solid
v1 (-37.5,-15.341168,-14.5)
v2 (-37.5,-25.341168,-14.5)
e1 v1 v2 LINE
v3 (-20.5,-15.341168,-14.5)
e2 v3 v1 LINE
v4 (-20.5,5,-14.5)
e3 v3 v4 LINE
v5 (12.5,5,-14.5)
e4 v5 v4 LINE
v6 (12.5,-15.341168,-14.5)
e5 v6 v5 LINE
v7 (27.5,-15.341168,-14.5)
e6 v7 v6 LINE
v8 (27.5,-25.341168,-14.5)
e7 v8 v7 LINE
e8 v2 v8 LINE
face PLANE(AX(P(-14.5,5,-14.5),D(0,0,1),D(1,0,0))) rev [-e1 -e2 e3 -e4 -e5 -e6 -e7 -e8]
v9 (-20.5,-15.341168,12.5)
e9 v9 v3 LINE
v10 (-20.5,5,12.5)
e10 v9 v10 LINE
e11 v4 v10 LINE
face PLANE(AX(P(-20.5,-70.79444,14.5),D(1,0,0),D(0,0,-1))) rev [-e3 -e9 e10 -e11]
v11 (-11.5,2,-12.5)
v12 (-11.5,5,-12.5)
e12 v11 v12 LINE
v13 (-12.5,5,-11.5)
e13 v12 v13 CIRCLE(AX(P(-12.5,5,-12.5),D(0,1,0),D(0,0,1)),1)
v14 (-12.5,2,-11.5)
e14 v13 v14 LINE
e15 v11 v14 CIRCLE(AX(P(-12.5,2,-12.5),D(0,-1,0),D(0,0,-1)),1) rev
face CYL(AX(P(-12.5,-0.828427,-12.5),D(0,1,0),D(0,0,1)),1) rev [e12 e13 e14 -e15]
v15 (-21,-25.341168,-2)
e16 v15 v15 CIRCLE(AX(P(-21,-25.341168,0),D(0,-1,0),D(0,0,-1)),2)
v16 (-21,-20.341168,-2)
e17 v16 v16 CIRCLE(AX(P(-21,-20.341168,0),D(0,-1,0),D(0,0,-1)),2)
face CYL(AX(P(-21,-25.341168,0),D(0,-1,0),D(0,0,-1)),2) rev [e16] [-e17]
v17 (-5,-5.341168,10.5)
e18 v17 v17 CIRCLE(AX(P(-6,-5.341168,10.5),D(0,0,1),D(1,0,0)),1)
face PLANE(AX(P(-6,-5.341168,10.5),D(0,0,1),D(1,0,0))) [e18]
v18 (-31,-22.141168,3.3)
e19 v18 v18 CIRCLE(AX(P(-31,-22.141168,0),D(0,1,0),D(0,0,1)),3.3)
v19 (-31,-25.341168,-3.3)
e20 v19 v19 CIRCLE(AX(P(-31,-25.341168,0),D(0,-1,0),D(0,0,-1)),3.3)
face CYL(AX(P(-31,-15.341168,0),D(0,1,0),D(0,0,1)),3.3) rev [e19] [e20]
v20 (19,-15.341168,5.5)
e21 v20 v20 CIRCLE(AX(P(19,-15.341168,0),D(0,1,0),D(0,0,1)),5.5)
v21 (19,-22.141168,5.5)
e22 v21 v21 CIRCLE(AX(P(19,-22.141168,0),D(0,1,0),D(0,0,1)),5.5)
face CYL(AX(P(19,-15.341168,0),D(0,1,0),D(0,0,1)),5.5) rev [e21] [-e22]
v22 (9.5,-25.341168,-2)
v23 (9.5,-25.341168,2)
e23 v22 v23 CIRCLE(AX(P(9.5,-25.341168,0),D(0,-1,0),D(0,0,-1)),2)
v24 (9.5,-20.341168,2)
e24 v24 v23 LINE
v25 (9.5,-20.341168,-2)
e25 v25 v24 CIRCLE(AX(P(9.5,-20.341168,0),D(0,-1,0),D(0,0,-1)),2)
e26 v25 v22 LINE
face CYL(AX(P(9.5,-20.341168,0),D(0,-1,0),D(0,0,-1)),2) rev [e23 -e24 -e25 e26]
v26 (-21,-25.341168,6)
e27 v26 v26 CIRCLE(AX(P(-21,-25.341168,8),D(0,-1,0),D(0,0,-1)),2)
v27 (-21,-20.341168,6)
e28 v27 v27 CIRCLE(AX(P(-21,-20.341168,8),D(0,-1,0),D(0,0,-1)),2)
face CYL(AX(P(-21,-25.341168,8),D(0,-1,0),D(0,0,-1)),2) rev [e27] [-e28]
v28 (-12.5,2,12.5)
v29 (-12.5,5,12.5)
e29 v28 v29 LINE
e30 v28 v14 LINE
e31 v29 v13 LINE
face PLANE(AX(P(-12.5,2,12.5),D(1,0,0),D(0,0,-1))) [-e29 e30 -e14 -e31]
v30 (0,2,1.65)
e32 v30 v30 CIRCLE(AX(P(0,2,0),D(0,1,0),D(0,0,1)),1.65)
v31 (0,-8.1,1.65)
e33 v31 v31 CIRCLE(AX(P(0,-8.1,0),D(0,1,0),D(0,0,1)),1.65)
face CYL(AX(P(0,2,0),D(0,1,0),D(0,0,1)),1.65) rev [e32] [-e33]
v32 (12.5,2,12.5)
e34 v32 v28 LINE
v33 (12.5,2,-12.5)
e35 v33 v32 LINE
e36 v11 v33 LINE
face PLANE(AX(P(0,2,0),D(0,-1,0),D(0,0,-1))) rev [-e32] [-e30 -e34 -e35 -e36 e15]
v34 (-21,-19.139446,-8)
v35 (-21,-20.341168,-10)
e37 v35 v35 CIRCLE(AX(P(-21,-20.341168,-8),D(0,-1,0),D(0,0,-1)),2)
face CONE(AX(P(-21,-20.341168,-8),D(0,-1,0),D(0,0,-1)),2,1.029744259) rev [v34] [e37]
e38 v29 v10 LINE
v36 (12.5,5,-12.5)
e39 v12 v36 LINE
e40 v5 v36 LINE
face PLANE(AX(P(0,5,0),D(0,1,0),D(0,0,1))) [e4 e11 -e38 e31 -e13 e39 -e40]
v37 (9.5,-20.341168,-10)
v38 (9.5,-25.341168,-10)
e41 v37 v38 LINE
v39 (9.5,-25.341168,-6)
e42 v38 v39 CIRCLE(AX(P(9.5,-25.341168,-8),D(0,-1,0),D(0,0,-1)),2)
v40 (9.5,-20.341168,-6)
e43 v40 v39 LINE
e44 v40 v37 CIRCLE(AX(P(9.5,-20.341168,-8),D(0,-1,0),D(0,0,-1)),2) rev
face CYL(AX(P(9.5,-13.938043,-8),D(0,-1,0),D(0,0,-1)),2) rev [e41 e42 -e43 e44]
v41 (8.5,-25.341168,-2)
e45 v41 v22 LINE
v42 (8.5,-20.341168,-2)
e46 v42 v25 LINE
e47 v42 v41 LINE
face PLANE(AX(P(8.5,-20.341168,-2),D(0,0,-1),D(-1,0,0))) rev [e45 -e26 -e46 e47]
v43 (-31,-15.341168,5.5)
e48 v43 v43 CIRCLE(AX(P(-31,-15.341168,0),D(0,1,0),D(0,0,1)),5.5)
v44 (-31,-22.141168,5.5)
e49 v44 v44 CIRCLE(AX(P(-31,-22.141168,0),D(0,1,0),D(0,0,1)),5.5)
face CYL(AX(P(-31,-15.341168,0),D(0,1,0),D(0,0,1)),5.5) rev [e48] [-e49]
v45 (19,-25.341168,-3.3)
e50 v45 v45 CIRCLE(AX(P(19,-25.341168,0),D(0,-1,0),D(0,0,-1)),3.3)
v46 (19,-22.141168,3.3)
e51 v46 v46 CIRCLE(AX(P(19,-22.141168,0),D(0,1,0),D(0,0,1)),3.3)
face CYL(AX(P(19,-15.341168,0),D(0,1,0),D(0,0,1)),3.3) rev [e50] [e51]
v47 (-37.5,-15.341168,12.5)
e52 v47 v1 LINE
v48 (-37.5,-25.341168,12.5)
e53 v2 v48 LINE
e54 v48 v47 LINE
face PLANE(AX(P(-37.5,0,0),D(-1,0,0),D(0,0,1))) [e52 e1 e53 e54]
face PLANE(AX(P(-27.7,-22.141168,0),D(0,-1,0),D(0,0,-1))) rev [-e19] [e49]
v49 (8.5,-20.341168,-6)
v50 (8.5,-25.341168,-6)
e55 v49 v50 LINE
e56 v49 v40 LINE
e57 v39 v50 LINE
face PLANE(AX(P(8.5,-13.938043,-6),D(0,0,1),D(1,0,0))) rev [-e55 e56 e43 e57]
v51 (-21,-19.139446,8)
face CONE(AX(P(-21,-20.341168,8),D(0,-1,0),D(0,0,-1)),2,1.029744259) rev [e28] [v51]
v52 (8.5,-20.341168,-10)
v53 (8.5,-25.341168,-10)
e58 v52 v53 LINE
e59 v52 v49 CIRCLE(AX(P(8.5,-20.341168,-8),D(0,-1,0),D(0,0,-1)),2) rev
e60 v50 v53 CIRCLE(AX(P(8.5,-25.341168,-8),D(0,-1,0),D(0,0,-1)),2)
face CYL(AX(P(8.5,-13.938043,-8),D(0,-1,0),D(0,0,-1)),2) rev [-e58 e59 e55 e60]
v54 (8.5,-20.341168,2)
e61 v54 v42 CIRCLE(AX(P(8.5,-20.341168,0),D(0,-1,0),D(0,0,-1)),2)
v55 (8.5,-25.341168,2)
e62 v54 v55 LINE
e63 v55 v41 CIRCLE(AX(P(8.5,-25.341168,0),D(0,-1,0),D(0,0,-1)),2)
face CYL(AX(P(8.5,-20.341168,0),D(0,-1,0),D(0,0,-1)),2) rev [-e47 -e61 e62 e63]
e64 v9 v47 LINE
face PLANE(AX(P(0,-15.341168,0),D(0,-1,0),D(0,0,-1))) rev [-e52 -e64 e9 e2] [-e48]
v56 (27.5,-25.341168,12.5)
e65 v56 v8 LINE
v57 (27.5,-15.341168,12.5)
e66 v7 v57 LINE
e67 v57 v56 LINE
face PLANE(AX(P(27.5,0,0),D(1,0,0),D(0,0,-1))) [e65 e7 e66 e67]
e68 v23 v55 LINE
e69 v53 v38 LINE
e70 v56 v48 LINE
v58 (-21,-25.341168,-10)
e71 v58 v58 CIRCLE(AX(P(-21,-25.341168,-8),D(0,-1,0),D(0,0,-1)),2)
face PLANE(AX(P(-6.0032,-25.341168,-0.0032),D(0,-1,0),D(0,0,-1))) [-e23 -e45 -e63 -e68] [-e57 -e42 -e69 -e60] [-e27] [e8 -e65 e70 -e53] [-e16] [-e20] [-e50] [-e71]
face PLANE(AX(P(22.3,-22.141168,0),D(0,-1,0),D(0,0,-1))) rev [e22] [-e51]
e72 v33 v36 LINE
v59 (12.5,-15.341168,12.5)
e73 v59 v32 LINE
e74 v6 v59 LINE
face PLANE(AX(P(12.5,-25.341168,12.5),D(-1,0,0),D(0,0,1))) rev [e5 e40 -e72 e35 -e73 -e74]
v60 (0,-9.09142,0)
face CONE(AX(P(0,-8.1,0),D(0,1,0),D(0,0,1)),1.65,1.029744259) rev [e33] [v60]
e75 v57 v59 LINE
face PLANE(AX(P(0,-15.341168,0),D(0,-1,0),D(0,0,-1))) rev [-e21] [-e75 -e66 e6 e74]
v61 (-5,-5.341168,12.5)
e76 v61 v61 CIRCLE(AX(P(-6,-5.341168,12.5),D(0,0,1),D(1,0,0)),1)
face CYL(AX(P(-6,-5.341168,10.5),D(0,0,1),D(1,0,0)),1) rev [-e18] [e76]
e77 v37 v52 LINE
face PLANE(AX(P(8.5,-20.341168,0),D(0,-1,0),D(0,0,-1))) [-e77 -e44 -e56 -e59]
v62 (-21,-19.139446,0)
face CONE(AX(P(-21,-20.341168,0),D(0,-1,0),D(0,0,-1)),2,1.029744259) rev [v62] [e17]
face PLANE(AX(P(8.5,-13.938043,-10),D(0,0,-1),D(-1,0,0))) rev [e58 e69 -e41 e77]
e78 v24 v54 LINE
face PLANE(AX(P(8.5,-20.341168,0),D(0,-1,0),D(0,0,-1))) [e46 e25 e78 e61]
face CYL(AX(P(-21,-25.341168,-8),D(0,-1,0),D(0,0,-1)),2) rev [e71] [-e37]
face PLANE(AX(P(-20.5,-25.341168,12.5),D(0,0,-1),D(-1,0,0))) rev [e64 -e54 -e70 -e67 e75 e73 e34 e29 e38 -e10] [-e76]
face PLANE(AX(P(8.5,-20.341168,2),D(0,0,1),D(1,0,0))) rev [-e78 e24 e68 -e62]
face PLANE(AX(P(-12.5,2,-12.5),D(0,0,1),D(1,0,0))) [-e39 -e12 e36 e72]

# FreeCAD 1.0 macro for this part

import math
import FreeCAD as App
import Part
import Sketcher

V = App.Vector

doc = App.newDocument("Part")
body = doc.addObject("PartDesign::Body", "Body")

# Sketch on XZ plane
sketch1 = body.newObject("Sketcher::SketchObject", "Sketch")
sketch1.AttachmentSupport = (doc.getObject("XZ_Plane"), [""])
sketch1.MapMode = "FlatFace"
sketch1.addGeometry(Part.LineSegment(V(-14, -14, 0), V(-14, 14, 0)), False)
sketch1.addGeometry(Part.LineSegment(V(-14, 14, 0), V(14, 14, 0)), False)
sketch1.addGeometry(Part.LineSegment(V(14, 14, 0), V(14, -14, 0)), False)
sketch1.addGeometry(Part.LineSegment(V(14, -14, 0), V(-14, -14, 0)), False)
sketch1.addConstraint(Sketcher.Constraint("Coincident", 0, 2, 1, 1))
sketch1.addConstraint(Sketcher.Constraint("Coincident", 1, 2, 2, 1))
sketch1.addConstraint(Sketcher.Constraint("Coincident", 2, 2, 3, 1))
sketch1.addConstraint(Sketcher.Constraint("Coincident", 3, 2, 0, 1))
sketch1.addConstraint(Sketcher.Constraint("Vertical", 0))
sketch1.addConstraint(Sketcher.Constraint("Horizontal", 1))
sketch1.addConstraint(Sketcher.Constraint("Vertical", 2))
sketch1.addConstraint(Sketcher.Constraint("Horizontal", 3))
sketch1.addConstraint(Sketcher.Constraint("Symmetric", 0, 2, 2, 2, -1, 1))
sketch1.addConstraint(Sketcher.Constraint("Equal", 3, 0))
sketch1.addConstraint(Sketcher.Constraint("DistanceX", 1, 1, 1, 2, 29.0))
pad1 = body.newObject("PartDesign::Pad", "Pad")
pad1.Profile = sketch1
pad1.Length = 5
pad1.Reversed = True

# Sketch on XZ plane
sketch2 = body.newObject("Sketcher::SketchObject", "Sketch001")
sketch2.AttachmentSupport = (doc.getObject("XZ_Plane"), [""])
sketch2.MapMode = "FlatFace"
sketch2.AttachmentOffset = App.Placement(V(0, 0, -5), App.Rotation())
sketch2.addGeometry(Part.LineSegment(V(-12, 12, 0), V(-12, -12, 0)), False)
sketch2.addGeometry(Part.LineSegment(V(-12, -12, 0), V(12, -12, 0)), False)
sketch2.addGeometry(Part.LineSegment(V(12, -12, 0), V(12, 12, 0)), False)
sketch2.addGeometry(Part.LineSegment(V(12, 12, 0), V(-12, 12, 0)), False)
sketch2.addConstraint(Sketcher.Constraint("Coincident", 0, 2, 1, 1))
sketch2.addConstraint(Sketcher.Constraint("Coincident", 1, 2, 2, 1))
sketch2.addConstraint(Sketcher.Constraint("Coincident", 2, 2, 3, 1))
sketch2.addConstraint(Sketcher.Constraint("Coincident", 3, 2, 0, 1))
sketch2.addConstraint(Sketcher.Constraint("Vertical", 0))
sketch2.addConstraint(Sketcher.Constraint("Horizontal", 1))
sketch2.addConstraint(Sketcher.Constraint("Vertical", 2))
sketch2.addConstraint(Sketcher.Constraint("Horizontal", 3))
sketch2.addConstraint(Sketcher.Constraint("Symmetric", 0, 2, 2, 2, -1, 1))
sketch2.addConstraint(Sketcher.Constraint("Equal", 3, 0))
sketch2.addConstraint(Sketcher.Constraint("DistanceX", 1, 1, 1, 2, 25.0))
pocket1 = body.newObject("PartDesign::Pocket", "Pocket")
pocket1.Profile = sketch2
pocket1.Length = 3
pocket1.Reversed = True

# Sketch on XZ plane
sketch3 = body.newObject("Sketcher::SketchObject", "Sketch002")
sketch3.AttachmentSupport = (doc.getObject("XZ_Plane"), [""])
sketch3.MapMode = "FlatFace"
sketch3.addGeometry(Part.LineSegment(V(14, -14, 0), V(14, 14, 0)), False)
sketch3.addGeometry(Part.LineSegment(V(14, 14, 0), V(-20, 14, 0)), False)
sketch3.addGeometry(Part.LineSegment(V(-20, 14, 0), V(-20, -14, 0)), False)
sketch3.addGeometry(Part.LineSegment(V(-20, -14, 0), V(14, -14, 0)), False)
sketch3.addConstraint(Sketcher.Constraint("Coincident", 0, 2, 1, 1))
sketch3.addConstraint(Sketcher.Constraint("Coincident", 1, 2, 2, 1))
sketch3.addConstraint(Sketcher.Constraint("Coincident", 2, 2, 3, 1))
sketch3.addConstraint(Sketcher.Constraint("Coincident", 3, 2, 0, 1))
sketch3.addConstraint(Sketcher.Constraint("Vertical", 0))
sketch3.addConstraint(Sketcher.Constraint("Horizontal", 1))
sketch3.addConstraint(Sketcher.Constraint("Vertical", 2))
sketch3.addConstraint(Sketcher.Constraint("Horizontal", 3))
sketch3.addConstraint(Sketcher.Constraint("DistanceX", 1, 2, 1, 1, 35.0))
sketch3.addConstraint(Sketcher.Constraint("DistanceY", 0, 1, 0, 2, 29.0))
sketch3.addConstraint(Sketcher.Constraint("DistanceX", -1, 1, 0, 2, 14.5))
sketch3.addConstraint(Sketcher.Constraint("DistanceY", -1, 1, 0, 2, 14.5))
pad2 = body.newObject("PartDesign::Pad", "Pad001")
pad2.Profile = sketch3
pad2.Length = 25.341168

# Sketch on XZ plane
sketch4 = body.newObject("Sketcher::SketchObject", "Sketch003")
sketch4.AttachmentSupport = (doc.getObject("XZ_Plane"), [""])
sketch4.MapMode = "FlatFace"
sketch4.AttachmentOffset = App.Placement(V(0, 0, -2), App.Rotation())
sketch4.addGeometry(Part.Circle(V(0, 0, 0), V(0, 0, 1), 1.6), False)
sketch4.addConstraint(Sketcher.Constraint("Coincident", 0, 3, -1, 1))
sketch4.addConstraint(Sketcher.Constraint("Diameter", 0, 3.3))
doc.recompute()
hole = body.newObject("PartDesign::Hole", "Hole")
hole.Profile = sketch4
hole.ThreadType = "None"
hole.Diameter = 3.3
hole.DepthType = "Dimension"
hole.Depth = 10.1
hole.DrillPoint = "Angled"
hole.DrillPointAngle = 118
hole.Reversed = True

# Sketch on XZ plane
sketch5 = body.newObject("Sketcher::SketchObject", "Sketch004")
sketch5.AttachmentSupport = (doc.getObject("XZ_Plane"), [""])
sketch5.MapMode = "FlatFace"
sketch5.AttachmentOffset = App.Placement(V(0, 0, -5), App.Rotation())
sketch5.addGeometry(Part.Circle(V(-12.5, -12.5, 0), V(0, 0, 1), 1), False)
sketch5.addConstraint(Sketcher.Constraint("Diameter", 0, 2.0))
sketch5.addConstraint(Sketcher.Constraint("DistanceX", 0, 3, -1, 1, 12.5))
sketch5.addConstraint(Sketcher.Constraint("DistanceY", 0, 3, -1, 1, 12.5))
pocket2 = body.newObject("PartDesign::Pocket", "Pocket001")
pocket2.Profile = sketch5
pocket2.Length = 3
pocket2.Reversed = True

# Sketch on YZ plane
sketch6 = body.newObject("Sketcher::SketchObject", "Sketch005")
sketch6.AttachmentSupport = (doc.getObject("YZ_Plane"), [""])
sketch6.MapMode = "FlatFace"
sketch6.AttachmentOffset = App.Placement(V(0, 0, -14.5), App.Rotation())
sketch6.addGeometry(Part.LineSegment(V(5, -14, 0), V(0, -14, 0)), False)
sketch6.addGeometry(Part.LineSegment(V(0, -14, 0), V(0, 14, 0)), False)
sketch6.addGeometry(Part.LineSegment(V(0, 14, 0), V(5, 14, 0)), False)
sketch6.addGeometry(Part.LineSegment(V(5, 14, 0), V(5, -14, 0)), False)
sketch6.addConstraint(Sketcher.Constraint("Coincident", 0, 2, 1, 1))
sketch6.addConstraint(Sketcher.Constraint("Coincident", 1, 2, 2, 1))
sketch6.addConstraint(Sketcher.Constraint("Coincident", 2, 2, 3, 1))
sketch6.addConstraint(Sketcher.Constraint("Coincident", 3, 2, 0, 1))
sketch6.addConstraint(Sketcher.Constraint("Horizontal", 0))
sketch6.addConstraint(Sketcher.Constraint("Vertical", 1))
sketch6.addConstraint(Sketcher.Constraint("Horizontal", 2))
sketch6.addConstraint(Sketcher.Constraint("Vertical", 3))
sketch6.addConstraint(Sketcher.Constraint("Symmetric", 0, 2, 1, 2, -1, 1))
sketch6.addConstraint(Sketcher.Constraint("DistanceX", 0, 2, 0, 1, 5.0))
sketch6.addConstraint(Sketcher.Constraint("DistanceY", 1, 1, 1, 2, 29.0))
pad3 = body.newObject("PartDesign::Pad", "Pad002")
pad3.Profile = sketch6
pad3.Length = 6
pad3.Reversed = True

# Sketch on XZ plane
sketch7 = body.newObject("Sketcher::SketchObject", "Sketch006")
sketch7.AttachmentSupport = (doc.getObject("XZ_Plane"), [""])
sketch7.MapMode = "FlatFace"
sketch7.AttachmentOffset = App.Placement(V(0, 0, -5), App.Rotation())
sketch7.addGeometry(Part.LineSegment(V(-20.5, 14.5, 0), V(14.5, 14.5, 0)), False)
sketch7.addGeometry(Part.LineSegment(V(14.5, 14.5, 0), V(14.5, -14.5, 0)), False)
sketch7.addGeometry(Part.LineSegment(V(14.5, -14.5, 0), V(12.5, -14.5, 0)), False)
sketch7.addGeometry(Part.LineSegment(V(12.5, -14.5, 0), V(12.5, 12.5, 0)), False)
sketch7.addGeometry(Part.LineSegment(V(12.5, 12.5, 0), V(-20.5, 12.5, 0)), False)
sketch7.addGeometry(Part.LineSegment(V(-20.5, 12.5, 0), V(-20.5, 14.5, 0)), False)
sketch7.addConstraint(Sketcher.Constraint("Coincident", 0, 2, 1, 1))
sketch7.addConstraint(Sketcher.Constraint("Coincident", 1, 2, 2, 1))
sketch7.addConstraint(Sketcher.Constraint("Coincident", 2, 2, 3, 1))
sketch7.addConstraint(Sketcher.Constraint("Coincident", 3, 2, 4, 1))
sketch7.addConstraint(Sketcher.Constraint("Coincident", 4, 2, 5, 1))
sketch7.addConstraint(Sketcher.Constraint("Coincident", 5, 2, 0, 1))
sketch7.addConstraint(Sketcher.Constraint("Horizontal", 0))
sketch7.addConstraint(Sketcher.Constraint("Vertical", 1))
sketch7.addConstraint(Sketcher.Constraint("Horizontal", 2))
sketch7.addConstraint(Sketcher.Constraint("Vertical", 3))
sketch7.addConstraint(Sketcher.Constraint("Horizontal", 4))
sketch7.addConstraint(Sketcher.Constraint("Vertical", 5))
sketch7.addConstraint(Sketcher.Constraint("Equal", 2, 5))
sketch7.addConstraint(Sketcher.Constraint("DistanceX", 0, 1, 0, 2, 35.0))
sketch7.addConstraint(Sketcher.Constraint("DistanceX", 2, 2, 2, 1, 2.0))
sketch7.addConstraint(Sketcher.Constraint("DistanceY", 1, 2, 1, 1, 29.0))
sketch7.addConstraint(Sketcher.Constraint("DistanceX", -1, 1, 0, 2, 14.5))
sketch7.addConstraint(Sketcher.Constraint("DistanceY", -1, 1, 0, 2, 14.5))
pocket3 = body.newObject("PartDesign::Pocket", "Pocket002")
pocket3.Profile = sketch7
pocket3.Type = "ThroughAll"
pocket3.Reversed = True

# Sketch on XZ plane
sketch8 = body.newObject("Sketcher::SketchObject", "Sketch007")
sketch8.AttachmentSupport = (doc.getObject("XZ_Plane"), [""])
sketch8.MapMode = "FlatFace"
sketch8.AttachmentOffset = App.Placement(V(0, 0, 25.341168), App.Rotation())
sketch8.addGeometry(Part.LineSegment(V(34, -12, 0), V(34, 12, 0)), False)
sketch8.addGeometry(Part.LineSegment(V(34, 12, 0), V(-46, 12, 0)), False)
sketch8.addGeometry(Part.LineSegment(V(-46, 12, 0), V(-46, -12, 0)), False)
sketch8.addGeometry(Part.LineSegment(V(-46, -12, 0), V(34, -12, 0)), False)
sketch8.addConstraint(Sketcher.Constraint("Coincident", 0, 2, 1, 1))
sketch8.addConstraint(Sketcher.Constraint("Coincident", 1, 2, 2, 1))
sketch8.addConstraint(Sketcher.Constraint("Coincident", 2, 2, 3, 1))
sketch8.addConstraint(Sketcher.Constraint("Coincident", 3, 2, 0, 1))
sketch8.addConstraint(Sketcher.Constraint("Vertical", 0))
sketch8.addConstraint(Sketcher.Constraint("Horizontal", 1))
sketch8.addConstraint(Sketcher.Constraint("Vertical", 2))
sketch8.addConstraint(Sketcher.Constraint("Horizontal", 3))
sketch8.addConstraint(Sketcher.Constraint("DistanceX", 1, 2, 1, 1, 80.0))
sketch8.addConstraint(Sketcher.Constraint("DistanceY", 0, 1, 0, 2, 25.0))
sketch8.addConstraint(Sketcher.Constraint("DistanceX", -1, 1, 0, 2, 34.0))
sketch8.addConstraint(Sketcher.Constraint("DistanceY", -1, 1, 0, 2, 12.5))
pad4 = body.newObject("PartDesign::Pad", "Pad003")
pad4.Profile = sketch8
pad4.Length = 10
pad4.Reversed = True

# Sketch on XZ plane
sketch9 = body.newObject("Sketcher::SketchObject", "Sketch008")
sketch9.AttachmentSupport = (doc.getObject("XZ_Plane"), [""])
sketch9.MapMode = "FlatFace"
sketch9.AttachmentOffset = App.Placement(V(0, 0, 15.341168), App.Rotation())
sketch9.addGeometry(Part.Circle(V(-31, 0, 0), V(0, 0, 1), 3.3), False)
sketch9.addGeometry(Part.Circle(V(19, 0, 0), V(0, 0, 1), 3.3), False)
sketch9.addConstraint(Sketcher.Constraint("Equal", 0, 1))
sketch9.addConstraint(Sketcher.Constraint("PointOnObject", 0, 3, -1))
sketch9.addConstraint(Sketcher.Constraint("PointOnObject", 1, 3, -1))
sketch9.addConstraint(Sketcher.Constraint("Diameter", 0, 6.6))
sketch9.addConstraint(Sketcher.Constraint("DistanceX", 0, 3, -1, 1, 31.0))
sketch9.addConstraint(Sketcher.Constraint("DistanceX", -1, 1, 1, 3, 19.0))
doc.recompute()
hole2 = body.newObject("PartDesign::Hole", "Hole001")
hole2.Profile = sketch9
hole2.ThreadType = "None"
hole2.Diameter = 6.6
hole2.DepthType = "Dimension"
hole2.Depth = 10.1
hole2.DrillPoint = "Angled"
hole2.DrillPointAngle = 118
hole2.HoleCutType = "Counterbore"
hole2.HoleCutDiameter = 11
hole2.HoleCutDepth = 6.8
hole2.Reversed = True

# Sketch on XY plane
sketch10 = body.newObject("Sketcher::SketchObject", "Sketch009")
sketch10.AttachmentSupport = (doc.getObject("XY_Plane"), [""])
sketch10.MapMode = "FlatFace"
sketch10.AttachmentOffset = App.Placement(V(0, 0, -12.5), App.Rotation())
sketch10.addGeometry(Part.LineSegment(V(34, -15, 0), V(34, -25, 0)), False)
sketch10.addGeometry(Part.LineSegment(V(34, -25, 0), V(-46, -25, 0)), False)
sketch10.addGeometry(Part.LineSegment(V(-46, -25, 0), V(-46, -15, 0)), False)
sketch10.addGeometry(Part.LineSegment(V(-46, -15, 0), V(34, -15, 0)), False)
sketch10.addConstraint(Sketcher.Constraint("Coincident", 0, 2, 1, 1))
sketch10.addConstraint(Sketcher.Constraint("Coincident", 1, 2, 2, 1))
sketch10.addConstraint(Sketcher.Constraint("Coincident", 2, 2, 3, 1))
sketch10.addConstraint(Sketcher.Constraint("Coincident", 3, 2, 0, 1))
sketch10.addConstraint(Sketcher.Constraint("Vertical", 0))
sketch10.addConstraint(Sketcher.Constraint("Horizontal", 1))
sketch10.addConstraint(Sketcher.Constraint("Vertical", 2))
sketch10.addConstraint(Sketcher.Constraint("Horizontal", 3))
sketch10.addConstraint(Sketcher.Constraint("DistanceX", 1, 2, 1, 1, 80.0))
sketch10.addConstraint(Sketcher.Constraint("DistanceY", 0, 2, 0, 1, 10.0))
sketch10.addConstraint(Sketcher.Constraint("DistanceX", -1, 1, 0, 2, 34.0))
sketch10.addConstraint(Sketcher.Constraint("DistanceY", 0, 2, -1, 1, 25.341168))
pad5 = body.newObject("PartDesign::Pad", "Pad004")
pad5.Profile = sketch10
pad5.Length = 2
pad5.Reversed = True

# Sketch on YZ plane
sketch11 = body.newObject("Sketcher::SketchObject", "Sketch010")
sketch11.AttachmentSupport = (doc.getObject("YZ_Plane"), [""])
sketch11.MapMode = "FlatFace"
sketch11.AttachmentOffset = App.Placement(V(0, 0, -46), App.Rotation())
sketch11.addGeometry(Part.LineSegment(V(-15, -14, 0), V(-25, -14, 0)), False)
sketch11.addGeometry(Part.LineSegment(V(-25, -14, 0), V(-25, 12, 0)), False)
sketch11.addGeometry(Part.LineSegment(V(-25, 12, 0), V(-15, 12, 0)), False)
sketch11.addGeometry(Part.LineSegment(V(-15, 12, 0), V(-15, -14, 0)), False)
sketch11.addConstraint(Sketcher.Constraint("Coincident", 0, 2, 1, 1))
sketch11.addConstraint(Sketcher.Constraint("Coincident", 1, 2, 2, 1))
sketch11.addConstraint(Sketcher.Constraint("Coincident", 2, 2, 3, 1))
sketch11.addConstraint(Sketcher.Constraint("Coincident", 3, 2, 0, 1))
sketch11.addConstraint(Sketcher.Constraint("Horizontal", 0))
sketch11.addConstraint(Sketcher.Constraint("Vertical", 1))
sketch11.addConstraint(Sketcher.Constraint("Horizontal", 2))
sketch11.addConstraint(Sketcher.Constraint("Vertical", 3))
sketch11.addConstraint(Sketcher.Constraint("DistanceX", 0, 2, 0, 1, 10.0))
sketch11.addConstraint(Sketcher.Constraint("DistanceY", 1, 1, 1, 2, 27.0))
sketch11.addConstraint(Sketcher.Constraint("DistanceY", 0, 2, -1, 1, 14.5))
sketch11.addConstraint(Sketcher.Constraint("DistanceX", 0, 2, -1, 1, 25.341168))
pocket4 = body.newObject("PartDesign::Pocket", "Pocket003")
pocket4.Profile = sketch11
pocket4.Length = 2
pocket4.Reversed = True

# Sketch on XZ plane
sketch12 = body.newObject("Sketcher::SketchObject", "Sketch011")
sketch12.AttachmentSupport = (doc.getObject("XZ_Plane"), [""])
sketch12.MapMode = "FlatFace"
sketch12.AttachmentOffset = App.Placement(V(0, 0, 25.341168), App.Rotation())
sketch12.addGeometry(Part.Circle(V(-21, 0, 0), V(0, 0, 1), 2), False)
sketch12.addConstraint(Sketcher.Constraint("PointOnObject", 0, 3, -1))
sketch12.addConstraint(Sketcher.Constraint("Diameter", 0, 4.0))
sketch12.addConstraint(Sketcher.Constraint("DistanceX", 0, 3, -1, 1, 21.0))
doc.recompute()
hole3 = body.newObject("PartDesign::Hole", "Hole002")
hole3.Profile = sketch12
hole3.ThreadType = "None"
hole3.Diameter = 4
hole3.DepthType = "Dimension"
hole3.Depth = 5
hole3.DrillPoint = "Angled"
hole3.DrillPointAngle = 118

# Sketch on XZ plane
sketch13 = body.newObject("Sketcher::SketchObject", "Sketch012")
sketch13.AttachmentSupport = (doc.getObject("XZ_Plane"), [""])
sketch13.MapMode = "FlatFace"
sketch13.AttachmentOffset = App.Placement(V(0, 0, 25.341168), App.Rotation())
sketch13.addGeometry(Part.LineSegment(V(9.5, 2, 0), V(8.5, 2, 0)), False)
sketch13.addGeometry(Part.ArcOfCircle(Part.Circle(V(8.5, 0, 0), V(0, 0, 1), 2), math.radians(90), math.radians(270)), False)
sketch13.addGeometry(Part.LineSegment(V(8.5, -2, 0), V(9.5, -2, 0)), False)
sketch13.addGeometry(Part.ArcOfCircle(Part.Circle(V(9.5, 0, 0), V(0, 0, 1), 2), math.radians(-90), math.radians(90)), False)
sketch13.addConstraint(Sketcher.Constraint("Tangent", 0, 2, 1, 1))
sketch13.addConstraint(Sketcher.Constraint("Tangent", 1, 2, 2, 1))
sketch13.addConstraint(Sketcher.Constraint("Tangent", 2, 2, 3, 1))
sketch13.addConstraint(Sketcher.Constraint("Tangent", 3, 2, 0, 1))
sketch13.addConstraint(Sketcher.Constraint("Horizontal", 0))
sketch13.addConstraint(Sketcher.Constraint("Horizontal", 2))
sketch13.addConstraint(Sketcher.Constraint("PointOnObject", 1, 3, -1))
sketch13.addConstraint(Sketcher.Constraint("Radius", 1, 2.0))
sketch13.addConstraint(Sketcher.Constraint("DistanceX", 0, 2, 0, 1, 1.0))
sketch13.addConstraint(Sketcher.Constraint("DistanceX", -1, 1, 1, 3, 8.5))
pocket5 = body.newObject("PartDesign::Pocket", "Pocket004")
pocket5.Profile = sketch13
pocket5.Length = 5

# Sketch on XY plane
sketch14 = body.newObject("Sketcher::SketchObject", "Sketch013")
sketch14.AttachmentSupport = (doc.getObject("XY_Plane"), [""])
sketch14.MapMode = "FlatFace"
sketch14.AttachmentOffset = App.Placement(V(0, 0, 12.5), App.Rotation())
sketch14.addGeometry(Part.Circle(V(-6, -5.3, 0), V(0, 0, 1), 1), False)
sketch14.addConstraint(Sketcher.Constraint("Diameter", 0, 2.0))
sketch14.addConstraint(Sketcher.Constraint("DistanceX", 0, 3, -1, 1, 6.0))
sketch14.addConstraint(Sketcher.Constraint("DistanceY", 0, 3, -1, 1, 5.341168))
pocket6 = body.newObject("PartDesign::Pocket", "Pocket005")
pocket6.Profile = sketch14
pocket6.Length = 2

# Sketch on XZ plane
sketch15 = body.newObject("Sketcher::SketchObject", "Sketch014")
sketch15.AttachmentSupport = (doc.getObject("XZ_Plane"), [""])
sketch15.MapMode = "FlatFace"
sketch15.AttachmentOffset = App.Placement(V(0, 0, 25.341168), App.Rotation())
sketch15.addGeometry(Part.Circle(V(-6, 0, 0), V(0, 0, 1), 2.5), False)
sketch15.addConstraint(Sketcher.Constraint("PointOnObject", 0, 3, -1))
sketch15.addConstraint(Sketcher.Constraint("Diameter", 0, 5.0))
sketch15.addConstraint(Sketcher.Constraint("DistanceX", 0, 3, -1, 1, 6.0))
doc.recompute()
hole4 = body.newObject("PartDesign::Hole", "Hole003")
hole4.Profile = sketch15
hole4.ThreadType = "None"
hole4.Diameter = 5
hole4.DepthType = "Dimension"
hole4.Depth = 10
hole4.DrillPoint = "Angled"
hole4.DrillPointAngle = 118

# Sketch on XY plane
sketch16 = body.newObject("Sketcher::SketchObject", "Sketch015")
sketch16.AttachmentSupport = (doc.getObject("XY_Plane"), [""])
sketch16.MapMode = "FlatFace"
sketch16.AttachmentOffset = App.Placement(V(0, 0, 10.4718), App.Rotation())
sketch16.addGeometry(Part.LineSegment(V(2.85, -17.04, 0), V(4.11, -17.04, 0)), False)
sketch16.addGeometry(Part.ArcOfCircle(Part.Circle(V(4.11, -16.29, 0), V(0, 0, 1), 0.75), math.radians(-90), math.radians(90)), False)
sketch16.addGeometry(Part.LineSegment(V(4.11, -15.54, 0), V(-16.37, -15.54, 0)), False)
sketch16.addGeometry(Part.ArcOfCircle(Part.Circle(V(-16.37, -16.29, 0), V(0, 0, 1), 0.75), math.radians(90), math.radians(270)), False)
sketch16.addGeometry(Part.LineSegment(V(-16.37, -17.04, 0), V(-15.15, -17.04, 0)), False)
sketch16.addGeometry(Part.LineSegment(V(-15.15, -17.04, 0), V(-12.5, -21.67, 0)), False)
sketch16.addGeometry(Part.LineSegment(V(-12.5, -21.67, 0), V(-12.5, -21.92, 0)), False)
sketch16.addGeometry(Part.LineSegment(V(-12.5, -21.92, 0), V(-16.53, -21.92, 0)), False)
sketch16.addGeometry(Part.ArcOfCircle(Part.Circle(V(-16.53, -22.67, 0), V(0, 0, 1), 0.75), math.radians(90), math.radians(270)), False)
sketch16.addGeometry(Part.LineSegment(V(-16.53, -23.42, 0), V(-15.78, -23.42, 0)), False)
sketch16.addGeometry(Part.LineSegment(V(-15.78, -23.42, 0), V(-15.78, -25.34, 0)), False)
sketch16.addGeometry(Part.LineSegment(V(-15.78, -25.34, 0), V(3.52, -25.34, 0)), False)
sketch16.addGeometry(Part.LineSegment(V(3.52, -25.34, 0), V(3.52, -23.67, 0)), False)
sketch16.addGeometry(Part.LineSegment(V(3.52, -23.67, 0), V(4.27, -23.67, 0)), False)
sketch16.addGeometry(Part.ArcOfCircle(Part.Circle(V(4.27, -22.92, 0), V(0, 0, 1), 0.75), math.radians(-90), math.radians(90)), False)
sketch16.addGeometry(Part.LineSegment(V(4.27, -22.17, 0), V(0.53, -22.17, 0)), False)
sketch16.addGeometry(Part.LineSegment(V(0.53, -22.17, 0), V(0.07, -21.91, 0)), False)
sketch16.addGeometry(Part.LineSegment(V(0.07, -21.91, 0), V(2.85, -17.04, 0)), False)
sketch16.addConstraint(Sketcher.Constraint("Tangent", 0, 2, 1, 1))
sketch16.addConstraint(Sketcher.Constraint("Tangent", 1, 2, 2, 1))
sketch16.addConstraint(Sketcher.Constraint("Tangent", 2, 2, 3, 1))
sketch16.addConstraint(Sketcher.Constraint("Tangent", 3, 2, 4, 1))
sketch16.addConstraint(Sketcher.Constraint("Coincident", 4, 2, 5, 1))
sketch16.addConstraint(Sketcher.Constraint("Coincident", 5, 2, 6, 1))
sketch16.addConstraint(Sketcher.Constraint("Coincident", 6, 2, 7, 1))
sketch16.addConstraint(Sketcher.Constraint("Tangent", 7, 2, 8, 1))
sketch16.addConstraint(Sketcher.Constraint("Tangent", 8, 2, 9, 1))
sketch16.addConstraint(Sketcher.Constraint("Coincident", 9, 2, 10, 1))
sketch16.addConstraint(Sketcher.Constraint("Coincident", 10, 2, 11, 1))
sketch16.addConstraint(Sketcher.Constraint("Coincident", 11, 2, 12, 1))
sketch16.addConstraint(Sketcher.Constraint("Coincident", 12, 2, 13, 1))
sketch16.addConstraint(Sketcher.Constraint("Tangent", 13, 2, 14, 1))
sketch16.addConstraint(Sketcher.Constraint("Tangent", 14, 2, 15, 1))
sketch16.addConstraint(Sketcher.Constraint("Coincident", 15, 2, 16, 1))
sketch16.addConstraint(Sketcher.Constraint("Coincident", 16, 2, 17, 1))
sketch16.addConstraint(Sketcher.Constraint("Coincident", 17, 2, 0, 1))
sketch16.addConstraint(Sketcher.Constraint("Horizontal", 0))
sketch16.addConstraint(Sketcher.Constraint("Horizontal", 2))
sketch16.addConstraint(Sketcher.Constraint("Horizontal", 4))
sketch16.addConstraint(Sketcher.Constraint("Vertical", 6))
sketch16.addConstraint(Sketcher.Constraint("Horizontal", 7))
sketch16.addConstraint(Sketcher.Constraint("Horizontal", 9))
sketch16.addConstraint(Sketcher.Constraint("Vertical", 10))
sketch16.addConstraint(Sketcher.Constraint("Horizontal", 11))
sketch16.addConstraint(Sketcher.Constraint("Vertical", 12))
sketch16.addConstraint(Sketcher.Constraint("Horizontal", 13))
sketch16.addConstraint(Sketcher.Constraint("Horizontal", 15))
sketch16.addConstraint(Sketcher.Constraint("Equal", 1, 3))
sketch16.addConstraint(Sketcher.Constraint("Equal", 3, 8))
sketch16.addConstraint(Sketcher.Constraint("Equal", 8, 14))
sketch16.addConstraint(Sketcher.Constraint("Perpendicular", 16, 17))
sketch16.addConstraint(Sketcher.Constraint("Equal", 9, 13))
sketch16.addConstraint(Sketcher.Constraint("Radius", 1, 0.75))
sketch16.addConstraint(Sketcher.Constraint("DistanceY", 8, 3, 5, 2, 1.0))
sketch16.addConstraint(Sketcher.Constraint("DistanceX", 9, 1, 9, 2, 0.75))
sketch16.addConstraint(Sketcher.Constraint("DistanceY", 11, 2, 0, 2, 8.3))
sketch16.addConstraint(Sketcher.Constraint("DistanceY", 12, 1, 12, 2, 1.675))
sketch16.addConstraint(Sketcher.Constraint("DistanceX", 11, 1, 11, 2, 19.301101))
sketch16.addConstraint(Sketcher.Constraint("DistanceX", 0, 1, 0, 2, 1.26297))
sketch16.addConstraint(Sketcher.Constraint("DistanceX", 2, 2, 2, 1, 20.48623))
sketch16.addConstraint(Sketcher.Constraint("DistanceX", 8, 3, -1, 1, 16.529301))
sketch16.addConstraint(Sketcher.Constraint("DistanceX", 4, 2, -1, 1, 15.146401))
sketch16.addConstraint(Sketcher.Constraint("DistanceY", 16, 2, -1, 1, 21.9053))
sketch16.addConstraint(Sketcher.Constraint("Distance", 5, 5.325858))
sketch16.addConstraint(Sketcher.Constraint("Distance", 16, 0.52588))
sketch16.addConstraint(Sketcher.Constraint("DistanceX", 4, 1, 4, 2, 1.225974))
sketch16.addConstraint(Sketcher.Constraint("DistanceX", 7, 2, 7, 1, 4.024837))
sketch16.addConstraint(Sketcher.Constraint("DistanceX", 15, 2, 15, 1, 3.743205))
pocket7 = body.newObject("PartDesign::Pocket", "Pocket006")
pocket7.Profile = sketch16
pocket7.Type = "ThroughAll"
pocket7.Midplane = True

# Sketch on YZ plane
sketch17 = body.newObject("Sketcher::SketchObject", "Sketch016")
sketch17.AttachmentSupport = (doc.getObject("YZ_Plane"), [""])
sketch17.MapMode = "FlatFace"
sketch17.AttachmentOffset = App.Placement(V(0, 0, -44), App.Rotation())
sketch17.addGeometry(Part.LineSegment(V(-15, -14, 0), V(-25, -14, 0)), False)
sketch17.addGeometry(Part.LineSegment(V(-25, -14, 0), V(-25, 12, 0)), False)
sketch17.addGeometry(Part.LineSegment(V(-25, 12, 0), V(-15, 12, 0)), False)
sketch17.addGeometry(Part.LineSegment(V(-15, 12, 0), V(-15, -14, 0)), False)
sketch17.addConstraint(Sketcher.Constraint("Coincident", 0, 2, 1, 1))
sketch17.addConstraint(Sketcher.Constraint("Coincident", 1, 2, 2, 1))
sketch17.addConstraint(Sketcher.Constraint("Coincident", 2, 2, 3, 1))
sketch17.addConstraint(Sketcher.Constraint("Coincident", 3, 2, 0, 1))
sketch17.addConstraint(Sketcher.Constraint("Horizontal", 0))
sketch17.addConstraint(Sketcher.Constraint("Vertical", 1))
sketch17.addConstraint(Sketcher.Constraint("Horizontal", 2))
sketch17.addConstraint(Sketcher.Constraint("Vertical", 3))
sketch17.addConstraint(Sketcher.Constraint("DistanceX", 0, 2, 0, 1, 10.0))
sketch17.addConstraint(Sketcher.Constraint("DistanceY", 1, 1, 1, 2, 27.0))
sketch17.addConstraint(Sketcher.Constraint("DistanceY", 0, 2, -1, 1, 14.5))
sketch17.addConstraint(Sketcher.Constraint("DistanceX", 0, 2, -1, 1, 25.341168))
pocket8 = body.newObject("PartDesign::Pocket", "Pocket007")
pocket8.Profile = sketch17
pocket8.Length = 6.5
pocket8.Reversed = True

# Sketch on YZ plane
sketch18 = body.newObject("Sketcher::SketchObject", "Sketch017")
sketch18.AttachmentSupport = (doc.getObject("YZ_Plane"), [""])
sketch18.MapMode = "FlatFace"
sketch18.AttachmentOffset = App.Placement(V(0, 0, 34), App.Rotation())
sketch18.addGeometry(Part.LineSegment(V(-15, 12, 0), V(-25, 12, 0)), False)
sketch18.addGeometry(Part.LineSegment(V(-25, 12, 0), V(-25, -14, 0)), False)
sketch18.addGeometry(Part.LineSegment(V(-25, -14, 0), V(-15, -14, 0)), False)
sketch18.addGeometry(Part.LineSegment(V(-15, -14, 0), V(-15, 12, 0)), False)
sketch18.addConstraint(Sketcher.Constraint("Coincident", 0, 2, 1, 1))
sketch18.addConstraint(Sketcher.Constraint("Coincident", 1, 2, 2, 1))
sketch18.addConstraint(Sketcher.Constraint("Coincident", 2, 2, 3, 1))
sketch18.addConstraint(Sketcher.Constraint("Coincident", 3, 2, 0, 1))
sketch18.addConstraint(Sketcher.Constraint("Horizontal", 0))
sketch18.addConstraint(Sketcher.Constraint("Vertical", 1))
sketch18.addConstraint(Sketcher.Constraint("Horizontal", 2))
sketch18.addConstraint(Sketcher.Constraint("Vertical", 3))
sketch18.addConstraint(Sketcher.Constraint("DistanceX", 0, 2, 0, 1, 10.0))
sketch18.addConstraint(Sketcher.Constraint("DistanceY", 1, 2, 1, 1, 27.0))
sketch18.addConstraint(Sketcher.Constraint("DistanceY", -1, 1, 0, 2, 12.5))
sketch18.addConstraint(Sketcher.Constraint("DistanceX", 0, 2, -1, 1, 25.341168))
pocket9 = body.newObject("PartDesign::Pocket", "Pocket008")
pocket9.Profile = sketch18
pocket9.Length = 6.5

# Sketch on XZ plane
sketch19 = body.newObject("Sketcher::SketchObject", "Sketch018")
sketch19.AttachmentSupport = (doc.getObject("XZ_Plane"), [""])
sketch19.MapMode = "FlatFace"
sketch19.AttachmentOffset = App.Placement(V(0, 0, 25.341168), App.Rotation())
sketch19.addGeometry(Part.LineSegment(V(9.5, -6, 0), V(8.5, -6, 0)), False)
sketch19.addGeometry(Part.ArcOfCircle(Part.Circle(V(8.5, -8, 0), V(0, 0, 1), 2), math.radians(90), math.radians(270)), False)
sketch19.addGeometry(Part.LineSegment(V(8.5, -10, 0), V(9.5, -10, 0)), False)
sketch19.addGeometry(Part.ArcOfCircle(Part.Circle(V(9.5, -8, 0), V(0, 0, 1), 2), math.radians(-90), math.radians(90)), False)
sketch19.addConstraint(Sketcher.Constraint("Tangent", 0, 2, 1, 1))
sketch19.addConstraint(Sketcher.Constraint("Tangent", 1, 2, 2, 1))
sketch19.addConstraint(Sketcher.Constraint("Tangent", 2, 2, 3, 1))
sketch19.addConstraint(Sketcher.Constraint("Tangent", 3, 2, 0, 1))
sketch19.addConstraint(Sketcher.Constraint("Horizontal", 0))
sketch19.addConstraint(Sketcher.Constraint("Horizontal", 2))
sketch19.addConstraint(Sketcher.Constraint("Radius", 1, 2.0))
sketch19.addConstraint(Sketcher.Constraint("DistanceX", 0, 2, 0, 1, 1.0))
sketch19.addConstraint(Sketcher.Constraint("DistanceY", 1, 3, -1, 1, 8.0))
sketch19.addConstraint(Sketcher.Constraint("DistanceX", -1, 1, 1, 3, 8.5))
pocket10 = body.newObject("PartDesign::Pocket", "Pocket009")
pocket10.Profile = sketch19
pocket10.Length = 5

# Sketch on XZ plane
sketch20 = body.newObject("Sketcher::SketchObject", "Sketch019")
sketch20.AttachmentSupport = (doc.getObject("XZ_Plane"), [""])
sketch20.MapMode = "FlatFace"
sketch20.AttachmentOffset = App.Placement(V(0, 0, 25.341168), App.Rotation())
sketch20.addGeometry(Part.Circle(V(-21, -8, 0), V(0, 0, 1), 2), False)
sketch20.addConstraint(Sketcher.Constraint("Diameter", 0, 4.0))
sketch20.addConstraint(Sketcher.Constraint("DistanceX", 0, 3, -1, 1, 21.0))
sketch20.addConstraint(Sketcher.Constraint("DistanceY", 0, 3, -1, 1, 8.0))
doc.recompute()
hole5 = body.newObject("PartDesign::Hole", "Hole004")
hole5.Profile = sketch20
hole5.ThreadType = "None"
hole5.Diameter = 4
hole5.DepthType = "Dimension"
hole5.Depth = 5
hole5.DrillPoint = "Angled"
hole5.DrillPointAngle = 118

# Sketch on XZ plane
sketch21 = body.newObject("Sketcher::SketchObject", "Sketch020")
sketch21.AttachmentSupport = (doc.getObject("XZ_Plane"), [""])
sketch21.MapMode = "FlatFace"
sketch21.AttachmentOffset = App.Placement(V(0, 0, 25.341168), App.Rotation())
sketch21.addGeometry(Part.Circle(V(-21, 8, 0), V(0, 0, 1), 2), False)
sketch21.addConstraint(Sketcher.Constraint("Diameter", 0, 4.0))
sketch21.addConstraint(Sketcher.Constraint("DistanceX", 0, 3, -1, 1, 21.0))
sketch21.addConstraint(Sketcher.Constraint("DistanceY", -1, 1, 0, 3, 8.0))
doc.recompute()
hole6 = body.newObject("PartDesign::Hole", "Hole005")
hole6.Profile = sketch21
hole6.ThreadType = "None"
hole6.Diameter = 4
hole6.DepthType = "Dimension"
hole6.Depth = 5
hole6.DrillPoint = "Angled"
hole6.DrillPointAngle = 118

# Sketch on XY plane
sketch22 = body.newObject("Sketcher::SketchObject", "Sketch021")
sketch22.AttachmentSupport = (doc.getObject("XY_Plane"), [""])
sketch22.MapMode = "FlatFace"
sketch22.AttachmentOffset = App.Placement(V(0, 0, 12.5), App.Rotation())
sketch22.addGeometry(Part.LineSegment(V(-18, -12, 0), V(-18, -25, 0)), False)
sketch22.addGeometry(Part.LineSegment(V(-18, -25, 0), V(6, -25, 0)), False)
sketch22.addGeometry(Part.LineSegment(V(6, -25, 0), V(6, -12, 0)), False)
sketch22.addGeometry(Part.LineSegment(V(6, -12, 0), V(-18, -12, 0)), False)
sketch22.addConstraint(Sketcher.Constraint("Coincident", 0, 2, 1, 1))
sketch22.addConstraint(Sketcher.Constraint("Coincident", 1, 2, 2, 1))
sketch22.addConstraint(Sketcher.Constraint("Coincident", 2, 2, 3, 1))
sketch22.addConstraint(Sketcher.Constraint("Coincident", 3, 2, 0, 1))
sketch22.addConstraint(Sketcher.Constraint("Vertical", 0))
sketch22.addConstraint(Sketcher.Constraint("Horizontal", 1))
sketch22.addConstraint(Sketcher.Constraint("Vertical", 2))
sketch22.addConstraint(Sketcher.Constraint("Horizontal", 3))
sketch22.addConstraint(Sketcher.Constraint("DistanceY", 0, 2, 0, 1, 13.839319))
sketch22.addConstraint(Sketcher.Constraint("DistanceX", 1, 1, 1, 2, 23.961906))
sketch22.addConstraint(Sketcher.Constraint("DistanceX", -1, 1, 1, 2, 5.55276))
sketch22.addConstraint(Sketcher.Constraint("DistanceY", 2, 2, -1, 1, 11.501848))
pad6 = body.newObject("PartDesign::Pad", "Pad005")
pad6.Profile = sketch22
pad6.Length = 27
pad6.Reversed = True

doc.recompute()
